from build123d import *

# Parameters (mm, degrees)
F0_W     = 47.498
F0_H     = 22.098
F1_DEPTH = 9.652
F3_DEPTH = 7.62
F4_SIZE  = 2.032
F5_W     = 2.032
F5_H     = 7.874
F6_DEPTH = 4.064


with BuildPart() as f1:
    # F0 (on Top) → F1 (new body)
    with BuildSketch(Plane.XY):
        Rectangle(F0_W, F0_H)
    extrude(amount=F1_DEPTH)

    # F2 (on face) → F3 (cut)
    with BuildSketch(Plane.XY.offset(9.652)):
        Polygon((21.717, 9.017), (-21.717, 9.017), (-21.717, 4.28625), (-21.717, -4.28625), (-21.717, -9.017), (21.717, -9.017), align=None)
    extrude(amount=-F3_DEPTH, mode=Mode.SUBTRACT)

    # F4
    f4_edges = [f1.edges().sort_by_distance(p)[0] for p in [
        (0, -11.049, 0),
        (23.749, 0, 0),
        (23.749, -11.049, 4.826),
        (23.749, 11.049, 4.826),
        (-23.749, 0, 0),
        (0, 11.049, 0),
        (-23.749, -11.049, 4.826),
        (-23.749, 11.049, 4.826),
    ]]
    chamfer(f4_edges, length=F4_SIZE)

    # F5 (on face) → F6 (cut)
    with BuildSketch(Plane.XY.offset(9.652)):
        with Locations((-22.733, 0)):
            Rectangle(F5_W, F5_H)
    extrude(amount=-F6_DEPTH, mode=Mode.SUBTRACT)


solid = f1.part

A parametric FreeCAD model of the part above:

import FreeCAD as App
import Part
import Sketcher
Q = App.Units.Quantity


def edges_at(feature, points):
    """Names of the edges that pass closest to the given points."""
    edges = feature.Shape.Edges
    near = lambda p: min(range(len(edges)), key=lambda i: edges[i].distToShape(Part.Vertex(*p))[0])
    return sorted({f"Edge{near(p) + 1}" for p in points})


def add_polygon(sketch, points):
    """Adds a closed chain of lines whose ends are joined by coincident constraints."""
    first, n = sketch.GeometryCount, len(points)
    for a, b in zip(points, points[1:] + points[:1]):
        sketch.addGeometry(Part.LineSegment(App.Vector(*a, 0), App.Vector(*b, 0)), False)
    for i in range(n):
        sketch.addConstraint(Sketcher.Constraint("Coincident", first + i, 2, first + (i + 1) % n, 1))

doc = App.newDocument("Part")
body = doc.addObject("PartDesign::Body", "Body")

# Sketch on XY plane
sketch1 = body.newObject("Sketcher::SketchObject", "Sketch")
sketch1.AttachmentSupport = (doc.getObject("XY_Plane"), [""])
sketch1.MapMode = "FlatFace"
add_polygon(sketch1, [(-24, 11), (-24, -11), (24, -11), (24, 11)])  # lines 0-3
sketch1.addConstraint([
    Sketcher.Constraint("Vertical", 0),
    Sketcher.Constraint("Horizontal", 1),
    Sketcher.Constraint("Vertical", 2),
    Sketcher.Constraint("Horizontal", 3),
    Sketcher.Constraint("Symmetric", 0, 2, 2, 2, -1, 1),
    Sketcher.Constraint("DistanceX", 1, 1, 1, 2, Q("1.87 in")),
    Sketcher.Constraint("DistanceY", 0, 2, 0, 1, Q("0.87 in")),
])
pad1 = body.newObject("PartDesign::Pad", "Pad")
pad1.Profile = sketch1
pad1.Length = Q("0.38 in")

# Sketch on XY plane
sketch2 = body.newObject("Sketcher::SketchObject", "Sketch001")
sketch2.AttachmentSupport = (doc.getObject("XY_Plane"), [""])
sketch2.MapMode = "FlatFace"
sketch2.AttachmentOffset = App.Placement(App.Vector(0, 0, 0.38 * 25.4), App.Rotation())
add_polygon(sketch2, [(22, 9), (-22, 9), (-22, -9), (22, -9)])  # lines 0-3
sketch2.addConstraint([
    Sketcher.Constraint("Horizontal", 0),
    Sketcher.Constraint("Vertical", 1),
    Sketcher.Constraint("Horizontal", 2),
    Sketcher.Constraint("Vertical", 3),
    Sketcher.Constraint("Symmetric", 0, 2, 2, 2, -1, 1),
    Sketcher.Constraint("DistanceX", 0, 2, 0, 1, Q("1.71 in")),
    Sketcher.Constraint("DistanceY", 1, 2, 1, 1, Q("0.71 in")),
])
pocket1 = body.newObject("PartDesign::Pocket", "Pocket")
pocket1.Profile = sketch2
pocket1.Length = Q("0.3 in")
doc.recompute()

chamfer = body.newObject("PartDesign::Chamfer", "Chamfer")
chamfer.Base = (pocket1, edges_at(pocket1, [
    (0, -11.049, 0),
    (23.749, 0, 0),
    (23.749, -11.049, 4.826),
    (23.749, 11.049, 4.826),
    (-23.749, 0, 0),
    (0, 11.049, 0),
    (-23.749, -11.049, 4.826),
    (-23.749, 11.049, 4.826),
]))
chamfer.Size = Q("0.08 in")

# Sketch on XY plane
sketch3 = body.newObject("Sketcher::SketchObject", "Sketch002")
sketch3.AttachmentSupport = (doc.getObject("XY_Plane"), [""])
sketch3.MapMode = "FlatFace"
sketch3.AttachmentOffset = App.Placement(App.Vector(0, 0, 0.38 * 25.4), App.Rotation())
add_polygon(sketch3, [(-23.7, 3.9), (-23.7, -3.9), (-21.7, -3.9), (-21.7, 3.9)])  # lines 0-3
sketch3.addConstraint([
    Sketcher.Constraint("Vertical", 0),
    Sketcher.Constraint("Horizontal", 1),
    Sketcher.Constraint("Vertical", 2),
    Sketcher.Constraint("Horizontal", 3),
    Sketcher.Constraint("DistanceX", 1, 1, 1, 2, Q("0.08 in")),
    Sketcher.Constraint("DistanceY", 0, 2, 0, 1, Q("0.31 in")),
    Sketcher.Constraint("DistanceX", 0, 2, -1, 1, Q("0.935 in")),
    Sketcher.Constraint("DistanceY", 0, 2, -1, 1, Q("0.155 in")),
])
pocket2 = body.newObject("PartDesign::Pocket", "Pocket001")
pocket2.Profile = sketch3
pocket2.Length = Q("0.16 in")

doc.recompute()
